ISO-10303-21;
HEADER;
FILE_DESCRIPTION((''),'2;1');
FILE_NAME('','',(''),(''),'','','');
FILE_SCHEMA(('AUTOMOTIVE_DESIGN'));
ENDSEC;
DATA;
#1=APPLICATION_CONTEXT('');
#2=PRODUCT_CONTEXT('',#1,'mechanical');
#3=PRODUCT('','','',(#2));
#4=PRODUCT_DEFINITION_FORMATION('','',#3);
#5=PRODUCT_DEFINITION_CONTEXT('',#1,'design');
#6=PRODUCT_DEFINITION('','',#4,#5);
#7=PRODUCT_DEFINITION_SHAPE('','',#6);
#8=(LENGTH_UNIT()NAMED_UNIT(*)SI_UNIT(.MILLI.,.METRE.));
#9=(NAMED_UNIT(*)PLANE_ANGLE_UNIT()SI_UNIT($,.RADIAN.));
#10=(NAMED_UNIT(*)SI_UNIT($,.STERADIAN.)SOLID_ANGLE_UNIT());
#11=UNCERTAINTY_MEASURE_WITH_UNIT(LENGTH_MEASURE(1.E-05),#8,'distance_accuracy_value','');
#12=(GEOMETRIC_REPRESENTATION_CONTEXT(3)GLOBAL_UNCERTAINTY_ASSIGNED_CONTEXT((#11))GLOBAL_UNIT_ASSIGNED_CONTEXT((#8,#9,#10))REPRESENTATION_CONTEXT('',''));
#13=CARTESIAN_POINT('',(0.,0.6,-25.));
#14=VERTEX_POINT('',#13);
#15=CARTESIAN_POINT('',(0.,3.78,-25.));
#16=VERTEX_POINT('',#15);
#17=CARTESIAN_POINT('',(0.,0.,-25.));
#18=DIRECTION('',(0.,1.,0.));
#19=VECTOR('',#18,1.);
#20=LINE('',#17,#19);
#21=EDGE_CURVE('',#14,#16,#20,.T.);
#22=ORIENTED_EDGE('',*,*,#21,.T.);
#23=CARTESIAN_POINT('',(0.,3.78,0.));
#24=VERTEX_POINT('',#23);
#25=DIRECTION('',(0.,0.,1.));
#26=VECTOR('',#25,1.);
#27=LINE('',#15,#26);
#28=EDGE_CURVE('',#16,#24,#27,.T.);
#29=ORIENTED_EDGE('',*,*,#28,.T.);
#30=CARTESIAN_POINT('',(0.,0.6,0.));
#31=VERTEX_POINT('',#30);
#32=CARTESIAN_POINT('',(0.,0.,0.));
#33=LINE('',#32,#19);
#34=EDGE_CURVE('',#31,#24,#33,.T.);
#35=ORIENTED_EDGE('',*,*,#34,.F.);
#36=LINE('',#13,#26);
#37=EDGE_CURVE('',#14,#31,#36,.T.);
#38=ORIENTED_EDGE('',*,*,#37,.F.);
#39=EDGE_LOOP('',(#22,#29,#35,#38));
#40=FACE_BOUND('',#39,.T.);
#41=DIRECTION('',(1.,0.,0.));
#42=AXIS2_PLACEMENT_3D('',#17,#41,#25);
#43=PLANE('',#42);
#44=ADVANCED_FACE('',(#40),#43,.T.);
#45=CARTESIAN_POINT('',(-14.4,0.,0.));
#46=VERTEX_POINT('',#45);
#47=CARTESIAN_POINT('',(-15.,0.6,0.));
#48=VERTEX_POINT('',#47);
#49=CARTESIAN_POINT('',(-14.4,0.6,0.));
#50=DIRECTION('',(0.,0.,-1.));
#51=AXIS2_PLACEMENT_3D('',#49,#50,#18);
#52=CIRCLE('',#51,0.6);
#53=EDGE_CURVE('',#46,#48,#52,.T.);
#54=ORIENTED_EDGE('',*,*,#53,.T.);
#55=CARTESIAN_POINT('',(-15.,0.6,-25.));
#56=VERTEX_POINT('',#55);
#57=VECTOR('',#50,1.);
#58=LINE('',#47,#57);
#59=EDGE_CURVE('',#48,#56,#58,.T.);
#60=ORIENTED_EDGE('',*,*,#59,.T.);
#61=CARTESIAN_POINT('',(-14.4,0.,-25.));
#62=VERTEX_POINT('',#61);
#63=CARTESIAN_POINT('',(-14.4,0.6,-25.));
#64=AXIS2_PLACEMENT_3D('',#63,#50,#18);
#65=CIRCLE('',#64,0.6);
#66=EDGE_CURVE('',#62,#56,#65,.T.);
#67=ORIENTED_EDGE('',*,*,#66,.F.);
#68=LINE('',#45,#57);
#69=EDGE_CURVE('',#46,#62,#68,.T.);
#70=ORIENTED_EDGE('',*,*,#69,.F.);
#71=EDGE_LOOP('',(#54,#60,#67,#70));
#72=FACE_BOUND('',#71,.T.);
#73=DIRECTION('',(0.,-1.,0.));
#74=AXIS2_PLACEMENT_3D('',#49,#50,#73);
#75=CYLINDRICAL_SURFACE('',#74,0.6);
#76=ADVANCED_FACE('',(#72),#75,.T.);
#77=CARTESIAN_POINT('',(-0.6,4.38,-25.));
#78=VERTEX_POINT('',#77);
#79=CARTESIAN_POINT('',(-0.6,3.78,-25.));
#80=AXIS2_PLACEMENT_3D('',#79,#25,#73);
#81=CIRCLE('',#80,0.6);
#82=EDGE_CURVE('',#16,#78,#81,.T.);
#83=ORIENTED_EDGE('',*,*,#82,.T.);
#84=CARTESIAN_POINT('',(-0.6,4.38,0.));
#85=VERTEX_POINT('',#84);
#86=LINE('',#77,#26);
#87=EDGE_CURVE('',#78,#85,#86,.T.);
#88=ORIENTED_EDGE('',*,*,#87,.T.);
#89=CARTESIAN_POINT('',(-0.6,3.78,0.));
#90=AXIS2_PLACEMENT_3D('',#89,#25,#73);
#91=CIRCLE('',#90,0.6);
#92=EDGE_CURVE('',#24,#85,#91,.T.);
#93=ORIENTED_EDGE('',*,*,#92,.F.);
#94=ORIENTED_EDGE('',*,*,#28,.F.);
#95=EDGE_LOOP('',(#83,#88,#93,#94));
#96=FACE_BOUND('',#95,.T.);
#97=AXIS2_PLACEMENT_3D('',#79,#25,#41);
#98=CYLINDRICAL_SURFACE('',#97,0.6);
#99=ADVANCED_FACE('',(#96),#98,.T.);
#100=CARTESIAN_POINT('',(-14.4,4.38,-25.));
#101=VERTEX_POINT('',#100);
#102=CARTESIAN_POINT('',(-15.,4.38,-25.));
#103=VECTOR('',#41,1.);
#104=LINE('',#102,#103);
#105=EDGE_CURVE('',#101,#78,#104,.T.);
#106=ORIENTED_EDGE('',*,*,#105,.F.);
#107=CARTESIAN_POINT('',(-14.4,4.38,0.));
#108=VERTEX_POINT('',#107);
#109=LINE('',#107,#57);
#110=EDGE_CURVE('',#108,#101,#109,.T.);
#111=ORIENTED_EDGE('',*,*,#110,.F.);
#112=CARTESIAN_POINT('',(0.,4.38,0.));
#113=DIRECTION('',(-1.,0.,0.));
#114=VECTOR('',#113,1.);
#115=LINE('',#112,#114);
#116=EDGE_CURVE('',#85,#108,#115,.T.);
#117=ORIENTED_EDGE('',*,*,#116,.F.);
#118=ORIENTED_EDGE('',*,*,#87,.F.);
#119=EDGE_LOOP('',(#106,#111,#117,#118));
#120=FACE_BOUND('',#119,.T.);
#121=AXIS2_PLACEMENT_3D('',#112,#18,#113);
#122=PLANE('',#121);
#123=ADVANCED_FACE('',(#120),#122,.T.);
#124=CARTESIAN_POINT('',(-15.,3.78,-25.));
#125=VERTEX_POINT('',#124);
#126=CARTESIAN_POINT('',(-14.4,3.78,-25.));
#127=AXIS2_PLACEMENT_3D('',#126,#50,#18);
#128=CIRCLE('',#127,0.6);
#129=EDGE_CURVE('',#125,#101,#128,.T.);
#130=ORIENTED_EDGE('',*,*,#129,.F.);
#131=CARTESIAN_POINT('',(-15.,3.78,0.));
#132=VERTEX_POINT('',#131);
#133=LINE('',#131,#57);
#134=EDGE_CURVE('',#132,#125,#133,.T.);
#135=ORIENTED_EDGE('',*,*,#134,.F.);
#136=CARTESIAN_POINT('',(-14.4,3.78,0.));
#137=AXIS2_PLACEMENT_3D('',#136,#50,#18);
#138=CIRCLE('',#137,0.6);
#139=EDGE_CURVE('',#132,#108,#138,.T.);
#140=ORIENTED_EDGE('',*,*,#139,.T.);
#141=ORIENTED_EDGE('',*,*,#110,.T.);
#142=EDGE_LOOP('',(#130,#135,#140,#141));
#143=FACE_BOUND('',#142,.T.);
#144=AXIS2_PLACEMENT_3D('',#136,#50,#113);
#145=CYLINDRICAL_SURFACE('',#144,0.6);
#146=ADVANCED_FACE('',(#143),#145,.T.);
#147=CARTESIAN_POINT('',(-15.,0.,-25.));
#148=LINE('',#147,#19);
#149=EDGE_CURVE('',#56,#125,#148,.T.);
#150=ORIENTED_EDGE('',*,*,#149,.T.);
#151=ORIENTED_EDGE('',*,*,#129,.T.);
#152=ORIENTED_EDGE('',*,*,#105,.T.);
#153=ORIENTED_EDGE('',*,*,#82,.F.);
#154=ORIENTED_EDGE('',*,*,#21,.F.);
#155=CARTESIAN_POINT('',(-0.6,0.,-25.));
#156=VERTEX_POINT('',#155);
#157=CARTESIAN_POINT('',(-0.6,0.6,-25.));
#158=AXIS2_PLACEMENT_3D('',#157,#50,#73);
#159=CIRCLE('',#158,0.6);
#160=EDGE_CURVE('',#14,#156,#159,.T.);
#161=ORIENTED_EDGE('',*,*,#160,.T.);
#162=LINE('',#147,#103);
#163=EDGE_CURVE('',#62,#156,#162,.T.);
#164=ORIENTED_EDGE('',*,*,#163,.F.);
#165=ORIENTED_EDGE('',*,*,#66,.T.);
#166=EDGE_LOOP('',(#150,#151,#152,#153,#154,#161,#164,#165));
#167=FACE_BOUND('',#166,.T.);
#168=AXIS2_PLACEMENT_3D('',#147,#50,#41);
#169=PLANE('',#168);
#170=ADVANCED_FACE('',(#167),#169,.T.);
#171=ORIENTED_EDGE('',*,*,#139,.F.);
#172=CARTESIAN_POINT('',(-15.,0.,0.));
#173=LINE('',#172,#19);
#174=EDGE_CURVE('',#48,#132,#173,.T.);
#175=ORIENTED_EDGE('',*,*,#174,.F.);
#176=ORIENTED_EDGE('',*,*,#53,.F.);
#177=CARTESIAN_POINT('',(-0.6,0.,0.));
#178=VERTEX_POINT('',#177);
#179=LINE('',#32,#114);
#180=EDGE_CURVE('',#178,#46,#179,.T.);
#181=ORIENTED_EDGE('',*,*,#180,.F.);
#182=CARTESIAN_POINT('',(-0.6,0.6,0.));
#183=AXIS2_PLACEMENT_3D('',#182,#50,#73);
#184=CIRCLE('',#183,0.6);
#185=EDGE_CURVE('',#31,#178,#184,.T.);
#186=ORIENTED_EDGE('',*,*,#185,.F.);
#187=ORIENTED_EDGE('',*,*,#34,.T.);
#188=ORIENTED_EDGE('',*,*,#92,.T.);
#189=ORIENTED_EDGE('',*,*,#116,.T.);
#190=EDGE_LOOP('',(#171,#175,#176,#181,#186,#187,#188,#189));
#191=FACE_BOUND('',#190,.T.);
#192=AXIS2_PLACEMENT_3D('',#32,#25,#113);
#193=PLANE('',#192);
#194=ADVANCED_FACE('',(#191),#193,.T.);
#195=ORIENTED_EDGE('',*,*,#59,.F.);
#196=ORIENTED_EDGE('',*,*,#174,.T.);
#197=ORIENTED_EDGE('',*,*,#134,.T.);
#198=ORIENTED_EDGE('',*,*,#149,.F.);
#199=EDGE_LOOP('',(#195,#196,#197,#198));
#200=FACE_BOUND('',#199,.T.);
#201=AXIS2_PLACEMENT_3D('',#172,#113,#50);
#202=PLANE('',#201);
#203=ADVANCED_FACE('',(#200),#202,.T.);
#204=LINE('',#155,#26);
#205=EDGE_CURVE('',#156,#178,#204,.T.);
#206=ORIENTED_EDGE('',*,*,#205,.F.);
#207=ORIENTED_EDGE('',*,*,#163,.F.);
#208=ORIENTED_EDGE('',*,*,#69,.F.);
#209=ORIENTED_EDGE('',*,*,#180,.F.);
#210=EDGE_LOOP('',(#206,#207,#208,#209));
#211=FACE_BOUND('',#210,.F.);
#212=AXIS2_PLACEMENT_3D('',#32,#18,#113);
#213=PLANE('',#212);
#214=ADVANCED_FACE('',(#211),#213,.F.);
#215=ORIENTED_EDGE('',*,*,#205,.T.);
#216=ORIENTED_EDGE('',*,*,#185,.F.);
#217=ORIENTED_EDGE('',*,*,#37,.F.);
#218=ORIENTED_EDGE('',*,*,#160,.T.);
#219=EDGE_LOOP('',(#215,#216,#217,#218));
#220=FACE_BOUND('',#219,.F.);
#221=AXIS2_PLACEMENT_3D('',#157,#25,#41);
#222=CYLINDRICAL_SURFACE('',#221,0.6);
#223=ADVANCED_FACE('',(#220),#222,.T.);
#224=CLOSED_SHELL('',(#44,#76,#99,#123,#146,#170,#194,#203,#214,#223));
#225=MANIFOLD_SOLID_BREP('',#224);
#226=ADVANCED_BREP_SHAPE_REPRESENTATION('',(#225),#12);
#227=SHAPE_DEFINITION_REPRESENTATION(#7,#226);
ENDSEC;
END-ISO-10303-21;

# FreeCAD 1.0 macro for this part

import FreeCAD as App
import Part
import Sketcher

V = App.Vector


def edges_at(feature, points):
    """Names of the edges that pass closest to the given points."""
    edges = feature.Shape.Edges
    near = lambda p: min(range(len(edges)), key=lambda i: edges[i].distToShape(Part.Vertex(*p))[0])
    return sorted({f"Edge{near(p) + 1}" for p in points})

doc = App.newDocument("Part")
params = doc.addObject("Spreadsheet::Sheet", "Params")
for row, (alias, value) in enumerate([
    ("sketch1_width", "15 mm"),
    ("sketch1_height", "25 mm"),
    ("pad1_length", "4.38 mm"),
    ("fillet_radius", "0.6 mm"),
    ("fillet2_radius", "0.6 mm"),
], start=1):
    params.set(f"A{row}", alias)
    params.set(f"B{row}", "=" + value)
    params.setAlias(f"B{row}", alias)

body = doc.addObject("PartDesign::Body", "Body")

sketch1 = body.newObject("Sketcher::SketchObject", "Sketch")
sketch1.AttachmentSupport = (doc.getObject("XZ_Plane"), [""])
sketch1.MapMode = "FlatFace"
sketch1.addGeometry(Part.LineSegment(V(-15, 0, 0), V(0, 0, 0)), False)
sketch1.addGeometry(Part.LineSegment(V(0, 0, 0), V(0, -25, 0)), False)
sketch1.addGeometry(Part.LineSegment(V(0, -25, 0), V(-15, -25, 0)), False)
sketch1.addGeometry(Part.LineSegment(V(-15, -25, 0), V(-15, 0, 0)), False)
sketch1.addConstraint(Sketcher.Constraint("Coincident", 0, 2, 1, 1))
sketch1.addConstraint(Sketcher.Constraint("Coincident", 1, 2, 2, 1))
sketch1.addConstraint(Sketcher.Constraint("Coincident", 2, 2, 3, 1))
sketch1.addConstraint(Sketcher.Constraint("Coincident", 3, 2, 0, 1))
sketch1.addConstraint(Sketcher.Constraint("Horizontal", 0))
sketch1.addConstraint(Sketcher.Constraint("Vertical", 1))
sketch1.addConstraint(Sketcher.Constraint("Horizontal", 2))
sketch1.addConstraint(Sketcher.Constraint("Vertical", 3))
sketch1.addConstraint(Sketcher.Constraint("Coincident", 0, 2, -1, 1))
sketch1.addConstraint(Sketcher.Constraint("DistanceX", 0, 1, 0, 2, 15.0))
sketch1.addConstraint(Sketcher.Constraint("DistanceY", 1, 2, 1, 1, 25.0))
sketch1.setExpression("Constraints[9]", "Params.sketch1_width")
sketch1.setExpression("Constraints[10]", "Params.sketch1_height")
pad1 = body.newObject("PartDesign::Pad", "Pad")
pad1.Profile = sketch1
pad1.setExpression("Length", "Params.pad1_length")
pad1.Reversed = True
doc.recompute()

fillet = body.newObject("PartDesign::Fillet", "Fillet")
fillet.Base = (pad1, edges_at(pad1, [(-15, 4.38, -12.5), (0, 4.38, -12.5)]))
fillet.setExpression("Radius", "Params.fillet_radius")
doc.recompute()

fillet2 = body.newObject("PartDesign::Fillet", "Fillet001")
fillet2.Base = (fillet, edges_at(fillet, [(-15, 0, -12.5), (0, 0, -12.5)]))
fillet2.setExpression("Radius", "Params.fillet2_radius")

doc.recompute()
